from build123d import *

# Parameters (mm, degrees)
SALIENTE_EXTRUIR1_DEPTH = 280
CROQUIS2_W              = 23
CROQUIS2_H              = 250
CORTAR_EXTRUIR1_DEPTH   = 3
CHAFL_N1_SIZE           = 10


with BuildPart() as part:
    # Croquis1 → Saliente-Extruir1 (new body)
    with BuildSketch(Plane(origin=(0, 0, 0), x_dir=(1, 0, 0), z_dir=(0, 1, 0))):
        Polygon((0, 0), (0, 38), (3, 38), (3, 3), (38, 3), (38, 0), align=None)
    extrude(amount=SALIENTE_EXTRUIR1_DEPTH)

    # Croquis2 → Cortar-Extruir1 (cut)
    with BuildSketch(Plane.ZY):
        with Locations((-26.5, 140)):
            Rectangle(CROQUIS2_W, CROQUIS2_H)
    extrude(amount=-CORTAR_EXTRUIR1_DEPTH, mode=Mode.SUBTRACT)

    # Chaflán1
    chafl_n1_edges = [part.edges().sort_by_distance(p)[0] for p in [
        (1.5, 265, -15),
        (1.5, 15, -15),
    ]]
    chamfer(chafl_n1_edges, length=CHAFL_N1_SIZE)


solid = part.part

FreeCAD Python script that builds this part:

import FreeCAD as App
import Part
import Sketcher
from FreeCAD import Vector
Q = App.Units.Quantity


def edges_at(feature, points):
    """Names of the edges that pass closest to the given points."""
    edges = feature.Shape.Edges
    near = lambda p: min(range(len(edges)), key=lambda i: edges[i].distToShape(Part.Vertex(*p))[0])
    return sorted({f"Edge{near(p) + 1}" for p in points})

doc = App.newDocument("Part")
body = doc.addObject("PartDesign::Body", "Body")

sketch1 = body.newObject("Sketcher::SketchObject", "Sketch")
sketch1.AttachmentSupport = (doc.getObject("XZ_Plane"), [""])
sketch1.MapMode = "FlatFace"
sketch1.addGeometry([
    Part.LineSegment(Vector(0, -38, 0), Vector(0, 0, 0)),
    Part.LineSegment(Vector(0, 0, 0), Vector(38, 0, 0)),
    Part.LineSegment(Vector(38, 0, 0), Vector(38, -3, 0)),
    Part.LineSegment(Vector(38, -3, 0), Vector(3, -3, 0)),
    Part.LineSegment(Vector(3, -3, 0), Vector(3, -38, 0)),
    Part.LineSegment(Vector(3, -38, 0), Vector(0, -38, 0)),
], False)
sketch1.addConstraint([
    Sketcher.Constraint("Coincident", 0, 2, 1, 1),
    Sketcher.Constraint("Coincident", 1, 2, 2, 1),
    Sketcher.Constraint("Coincident", 2, 2, 3, 1),
    Sketcher.Constraint("Coincident", 3, 2, 4, 1),
    Sketcher.Constraint("Coincident", 4, 2, 5, 1),
    Sketcher.Constraint("Coincident", 5, 2, 0, 1),
    Sketcher.Constraint("Vertical", 0),
    Sketcher.Constraint("Horizontal", 1),
    Sketcher.Constraint("Vertical", 2),
    Sketcher.Constraint("Horizontal", 3),
    Sketcher.Constraint("Vertical", 4),
    Sketcher.Constraint("Horizontal", 5),
    Sketcher.Constraint("Coincident", 0, 2, -1, 1),
    Sketcher.Constraint("Equal", 1, 0),
    Sketcher.Constraint("Equal", 5, 2),
    Sketcher.Constraint("DistanceX", 1, 1, 1, 2, Q("38 mm")),
    Sketcher.Constraint("DistanceX", 3, 2, 3, 1, Q("35 mm")),
])
pad1 = body.newObject("PartDesign::Pad", "Pad")
pad1.Profile = sketch1
pad1.Length = 280
pad1.Reversed = True

sketch2 = body.newObject("Sketcher::SketchObject", "Sketch001")
sketch2.AttachmentSupport = (doc.getObject("YZ_Plane"), [""])
sketch2.MapMode = "FlatFace"
sketch2.addGeometry([
    Part.LineSegment(Vector(265, -38, 0), Vector(15, -38, 0)),
    Part.LineSegment(Vector(15, -38, 0), Vector(15, -15, 0)),
    Part.LineSegment(Vector(15, -15, 0), Vector(265, -15, 0)),
    Part.LineSegment(Vector(265, -15, 0), Vector(265, -38, 0)),
], False)
sketch2.addConstraint([
    Sketcher.Constraint("Coincident", 0, 2, 1, 1),
    Sketcher.Constraint("Coincident", 1, 2, 2, 1),
    Sketcher.Constraint("Coincident", 2, 2, 3, 1),
    Sketcher.Constraint("Coincident", 3, 2, 0, 1),
    Sketcher.Constraint("Horizontal", 0),
    Sketcher.Constraint("Vertical", 1),
    Sketcher.Constraint("Horizontal", 2),
    Sketcher.Constraint("Vertical", 3),
    Sketcher.Constraint("DistanceX", 0, 2, 0, 1, Q("250 mm")),
    Sketcher.Constraint("DistanceY", 1, 1, 1, 2, Q("23 mm")),
    Sketcher.Constraint("DistanceX", -1, 1, 0, 2, Q("15 mm")),
    Sketcher.Constraint("DistanceY", 0, 2, -1, 1, Q("38 mm")),
])
pocket1 = body.newObject("PartDesign::Pocket", "Pocket")
pocket1.Profile = sketch2
pocket1.Length = 3
pocket1.Reversed = True
doc.recompute()

chamfer = body.newObject("PartDesign::Chamfer", "Chamfer")
chamfer.Base = (pocket1, edges_at(pocket1, [(1.5, 265, -15), (1.5, 15, -15)]))
chamfer.Size = 10

doc.recompute()
